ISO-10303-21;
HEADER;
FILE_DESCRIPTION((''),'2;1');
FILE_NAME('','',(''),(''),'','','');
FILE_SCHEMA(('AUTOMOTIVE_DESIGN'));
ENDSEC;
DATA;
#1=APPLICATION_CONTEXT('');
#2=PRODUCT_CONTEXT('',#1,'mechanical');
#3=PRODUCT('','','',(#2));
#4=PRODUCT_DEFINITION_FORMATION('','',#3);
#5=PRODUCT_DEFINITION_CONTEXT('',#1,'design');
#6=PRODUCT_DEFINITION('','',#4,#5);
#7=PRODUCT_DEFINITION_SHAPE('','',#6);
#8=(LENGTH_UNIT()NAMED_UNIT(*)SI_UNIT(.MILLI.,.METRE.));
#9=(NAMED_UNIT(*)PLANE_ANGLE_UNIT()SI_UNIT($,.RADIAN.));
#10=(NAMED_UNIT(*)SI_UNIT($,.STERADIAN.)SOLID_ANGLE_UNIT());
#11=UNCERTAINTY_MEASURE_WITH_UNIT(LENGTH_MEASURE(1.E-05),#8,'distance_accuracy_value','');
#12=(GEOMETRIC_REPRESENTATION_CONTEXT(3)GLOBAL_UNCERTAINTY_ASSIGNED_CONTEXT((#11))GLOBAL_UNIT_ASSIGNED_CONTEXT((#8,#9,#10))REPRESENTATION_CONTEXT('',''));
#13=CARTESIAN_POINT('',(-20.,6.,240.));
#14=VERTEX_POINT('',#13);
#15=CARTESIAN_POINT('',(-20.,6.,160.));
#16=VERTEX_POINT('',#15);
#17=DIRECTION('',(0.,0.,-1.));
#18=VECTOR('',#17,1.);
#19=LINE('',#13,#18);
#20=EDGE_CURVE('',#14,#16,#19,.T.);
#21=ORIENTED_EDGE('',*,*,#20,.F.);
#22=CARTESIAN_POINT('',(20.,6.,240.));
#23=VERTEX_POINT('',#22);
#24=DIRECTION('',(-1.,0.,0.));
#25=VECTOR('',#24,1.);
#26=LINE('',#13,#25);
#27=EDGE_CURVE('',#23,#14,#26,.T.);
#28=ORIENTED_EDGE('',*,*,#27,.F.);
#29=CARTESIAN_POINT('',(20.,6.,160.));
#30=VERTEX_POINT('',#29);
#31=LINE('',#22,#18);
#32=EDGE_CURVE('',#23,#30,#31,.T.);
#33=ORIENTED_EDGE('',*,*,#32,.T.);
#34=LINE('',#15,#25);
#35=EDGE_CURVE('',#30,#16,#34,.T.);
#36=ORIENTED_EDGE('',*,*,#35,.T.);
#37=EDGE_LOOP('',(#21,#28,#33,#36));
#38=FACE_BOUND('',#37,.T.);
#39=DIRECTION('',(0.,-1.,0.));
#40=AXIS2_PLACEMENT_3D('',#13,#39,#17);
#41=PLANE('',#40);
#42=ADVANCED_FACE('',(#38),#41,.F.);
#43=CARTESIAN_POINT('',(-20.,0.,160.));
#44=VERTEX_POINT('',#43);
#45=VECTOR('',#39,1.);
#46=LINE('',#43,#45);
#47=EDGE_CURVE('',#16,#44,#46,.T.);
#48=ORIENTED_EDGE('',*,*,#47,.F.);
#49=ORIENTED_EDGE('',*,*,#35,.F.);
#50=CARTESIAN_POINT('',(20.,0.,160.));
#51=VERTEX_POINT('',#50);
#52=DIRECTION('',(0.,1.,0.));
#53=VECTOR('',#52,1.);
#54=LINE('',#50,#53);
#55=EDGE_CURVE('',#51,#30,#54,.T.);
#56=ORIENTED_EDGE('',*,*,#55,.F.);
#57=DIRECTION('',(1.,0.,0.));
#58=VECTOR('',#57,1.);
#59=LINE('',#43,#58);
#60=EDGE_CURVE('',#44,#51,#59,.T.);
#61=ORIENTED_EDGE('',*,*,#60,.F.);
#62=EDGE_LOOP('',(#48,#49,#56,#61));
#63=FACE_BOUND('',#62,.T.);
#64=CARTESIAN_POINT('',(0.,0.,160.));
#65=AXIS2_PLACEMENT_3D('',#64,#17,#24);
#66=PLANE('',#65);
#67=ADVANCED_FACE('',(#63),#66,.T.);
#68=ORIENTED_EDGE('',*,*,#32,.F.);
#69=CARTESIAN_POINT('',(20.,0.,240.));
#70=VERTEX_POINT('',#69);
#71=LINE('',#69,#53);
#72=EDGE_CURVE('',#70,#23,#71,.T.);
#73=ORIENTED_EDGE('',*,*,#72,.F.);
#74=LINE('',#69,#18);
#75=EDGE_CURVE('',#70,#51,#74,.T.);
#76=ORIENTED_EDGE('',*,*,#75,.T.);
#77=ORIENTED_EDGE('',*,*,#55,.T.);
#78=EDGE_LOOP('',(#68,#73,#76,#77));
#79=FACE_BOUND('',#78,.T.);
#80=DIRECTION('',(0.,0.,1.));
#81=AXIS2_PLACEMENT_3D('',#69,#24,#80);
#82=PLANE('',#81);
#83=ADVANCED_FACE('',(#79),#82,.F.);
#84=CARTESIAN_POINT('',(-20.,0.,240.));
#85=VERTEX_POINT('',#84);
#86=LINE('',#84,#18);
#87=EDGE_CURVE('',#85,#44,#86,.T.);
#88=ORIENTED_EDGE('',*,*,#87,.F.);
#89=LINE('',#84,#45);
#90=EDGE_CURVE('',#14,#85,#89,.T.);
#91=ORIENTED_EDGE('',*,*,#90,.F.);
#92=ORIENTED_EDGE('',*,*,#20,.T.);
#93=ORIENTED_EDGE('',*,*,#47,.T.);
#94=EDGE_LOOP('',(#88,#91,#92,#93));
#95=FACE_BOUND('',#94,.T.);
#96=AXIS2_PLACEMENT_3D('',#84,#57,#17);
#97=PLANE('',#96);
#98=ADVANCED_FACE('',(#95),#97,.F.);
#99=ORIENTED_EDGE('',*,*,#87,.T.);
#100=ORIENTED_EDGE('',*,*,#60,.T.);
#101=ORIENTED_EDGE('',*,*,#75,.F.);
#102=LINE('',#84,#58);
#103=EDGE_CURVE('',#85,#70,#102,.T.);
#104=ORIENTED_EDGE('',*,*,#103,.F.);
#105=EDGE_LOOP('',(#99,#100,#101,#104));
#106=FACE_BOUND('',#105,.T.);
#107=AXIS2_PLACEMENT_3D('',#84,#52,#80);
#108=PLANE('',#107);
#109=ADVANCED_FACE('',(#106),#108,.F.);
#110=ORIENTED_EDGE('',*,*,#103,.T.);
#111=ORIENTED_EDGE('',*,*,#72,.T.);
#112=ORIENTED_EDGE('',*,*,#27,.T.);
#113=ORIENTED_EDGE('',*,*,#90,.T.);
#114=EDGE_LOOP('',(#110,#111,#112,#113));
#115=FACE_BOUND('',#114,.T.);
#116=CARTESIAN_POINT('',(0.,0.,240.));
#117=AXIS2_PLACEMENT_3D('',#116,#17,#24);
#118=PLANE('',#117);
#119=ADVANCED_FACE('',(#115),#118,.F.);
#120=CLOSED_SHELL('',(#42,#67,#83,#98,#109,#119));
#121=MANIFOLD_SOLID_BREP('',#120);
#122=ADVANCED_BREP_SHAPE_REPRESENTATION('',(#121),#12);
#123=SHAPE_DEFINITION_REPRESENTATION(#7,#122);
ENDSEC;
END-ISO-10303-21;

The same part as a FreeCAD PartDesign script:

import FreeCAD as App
import Part
import Sketcher

V = App.Vector


def add_polygon(sketch, points):
    """Adds a closed chain of lines whose ends are joined by coincident constraints."""
    first, n = sketch.GeometryCount, len(points)
    for a, b in zip(points, points[1:] + points[:1]):
        sketch.addGeometry(Part.LineSegment(App.Vector(*a, 0), App.Vector(*b, 0)), False)
    for i in range(n):
        sketch.addConstraint(Sketcher.Constraint("Coincident", first + i, 2, first + (i + 1) % n, 1))

doc = App.newDocument("Part")
body = doc.addObject("PartDesign::Body", "Body")

# Sketch on XY plane
sketch1 = doc.addObject("Sketcher::SketchObject", "Sketch")
body.addObject(sketch1)
sketch1.AttachmentSupport = (doc.XY_Plane, [""])
sketch1.MapMode = "FlatFace"
sketch1.AttachmentOffset = App.Placement(V(0, 0, 160), App.Rotation())
add_polygon(sketch1, [(-20, 6), (-20, 0), (20, 0), (20, 6)])  # lines 0-3
sketch1.addConstraint(Sketcher.Constraint("Vertical", 0))
sketch1.addConstraint(Sketcher.Constraint("Horizontal", 1))
sketch1.addConstraint(Sketcher.Constraint("Vertical", 2))
sketch1.addConstraint(Sketcher.Constraint("Horizontal", 3))
sketch1.addConstraint(Sketcher.Constraint("Symmetric", 0, 2, 1, 2, -1, 1))
sketch1.addConstraint(Sketcher.Constraint("DistanceX", 1, 1, 1, 2, 40.0))
sketch1.addConstraint(Sketcher.Constraint("DistanceY", 0, 2, 0, 1, 6.0))
pad1 = doc.addObject("PartDesign::Pad", "Pad")
body.addObject(pad1)
pad1.Profile = sketch1
pad1.Length = 80

doc.recompute()
